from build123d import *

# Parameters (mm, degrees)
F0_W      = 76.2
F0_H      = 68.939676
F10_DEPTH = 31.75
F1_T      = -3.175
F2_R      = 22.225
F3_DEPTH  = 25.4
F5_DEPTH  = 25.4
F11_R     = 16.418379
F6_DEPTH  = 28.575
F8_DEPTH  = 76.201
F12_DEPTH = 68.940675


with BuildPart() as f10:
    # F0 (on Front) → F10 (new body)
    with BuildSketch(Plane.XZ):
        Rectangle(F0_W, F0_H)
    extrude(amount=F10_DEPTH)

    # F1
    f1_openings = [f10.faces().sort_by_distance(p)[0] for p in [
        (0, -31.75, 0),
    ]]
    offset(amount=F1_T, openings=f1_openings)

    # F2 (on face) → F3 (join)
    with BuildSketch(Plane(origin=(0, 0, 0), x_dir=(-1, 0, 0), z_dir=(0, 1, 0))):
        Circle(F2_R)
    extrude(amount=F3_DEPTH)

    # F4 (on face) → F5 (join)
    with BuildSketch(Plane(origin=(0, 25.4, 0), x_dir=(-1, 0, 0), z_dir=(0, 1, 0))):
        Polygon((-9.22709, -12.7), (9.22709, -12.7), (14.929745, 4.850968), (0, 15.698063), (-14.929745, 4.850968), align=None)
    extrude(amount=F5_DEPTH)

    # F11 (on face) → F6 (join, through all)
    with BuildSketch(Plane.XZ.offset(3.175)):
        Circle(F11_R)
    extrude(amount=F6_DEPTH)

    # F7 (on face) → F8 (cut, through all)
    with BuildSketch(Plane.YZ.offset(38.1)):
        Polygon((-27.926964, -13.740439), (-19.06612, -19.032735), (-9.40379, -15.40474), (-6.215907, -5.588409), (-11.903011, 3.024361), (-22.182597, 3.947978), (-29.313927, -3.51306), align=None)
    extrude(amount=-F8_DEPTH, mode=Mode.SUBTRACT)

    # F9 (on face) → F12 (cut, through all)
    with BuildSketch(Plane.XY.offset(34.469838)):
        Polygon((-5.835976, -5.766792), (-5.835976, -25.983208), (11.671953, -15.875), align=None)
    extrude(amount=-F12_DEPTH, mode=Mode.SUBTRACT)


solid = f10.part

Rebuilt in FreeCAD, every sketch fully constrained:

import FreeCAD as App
import Part
import Sketcher
Q = App.Units.Quantity


def faces_at(feature, points):
    """Names of the faces that lie closest to the given points."""
    faces = feature.Shape.Faces
    near = lambda p: min(range(len(faces)), key=lambda i: faces[i].distToShape(Part.Vertex(*p))[0])
    return sorted({f"Face{near(p) + 1}" for p in points})


def add_polygon(sketch, points):
    """Adds a closed chain of lines whose ends are joined by coincident constraints."""
    first, n = sketch.GeometryCount, len(points)
    for a, b in zip(points, points[1:] + points[:1]):
        sketch.addGeometry(Part.LineSegment(App.Vector(*a, 0), App.Vector(*b, 0)), False)
    for i in range(n):
        sketch.addConstraint(Sketcher.Constraint("Coincident", first + i, 2, first + (i + 1) % n, 1))

doc = App.newDocument("Part")
params = doc.addObject("Spreadsheet::Sheet", "Params")
for row, (alias, value) in enumerate([
    ("sketch1_width", "3 in"),
    ("pad1_length", "1.25 in"),
    ("thickness_wall", "0.125 in"),
    ("sketch2_diameter", "1.75 in"),
    ("pad2_length", "1 in"),
    ("pad3_length", "1 in"),
    ("pad4_length", "1.125 in"),
], start=1):
    params.set(f"A{row}", alias)
    params.set(f"B{row}", "=" + value)
    params.setAlias(f"B{row}", alias)

body = doc.addObject("PartDesign::Body", "Body")

# Sketch on XZ plane
sketch1 = body.newObject("Sketcher::SketchObject", "Sketch")
sketch1.AttachmentSupport = (doc.getObject("XZ_Plane"), [""])
sketch1.MapMode = "FlatFace"
add_polygon(sketch1, [(-38.1, 34.469838), (-38.1, -34.469838), (38.1, -34.469838), (38.1, 34.469838)])  # lines 0-3
sketch1.addConstraint(Sketcher.Constraint("Vertical", 0))
sketch1.addConstraint(Sketcher.Constraint("Horizontal", 1))
sketch1.addConstraint(Sketcher.Constraint("Vertical", 2))
sketch1.addConstraint(Sketcher.Constraint("Horizontal", 3))
sketch1.addConstraint(Sketcher.Constraint("Symmetric", 0, 2, 2, 2, -1, 1))
sketch1.addConstraint(Sketcher.Constraint("DistanceX", 1, 1, 1, 2, Q("3 in")))
sketch1.addConstraint(Sketcher.Constraint("DistanceY", 0, 2, 0, 1, 68.939676))
sketch1.setExpression("Constraints[9]", "Params.sketch1_width")
pad1 = body.newObject("PartDesign::Pad", "Pad")
pad1.Profile = sketch1
pad1.setExpression("Length", "Params.pad1_length")
doc.recompute()

thickness = body.newObject("PartDesign::Thickness", "Thickness")
thickness.Base = (pad1, faces_at(pad1, [(0, -31.75, 0)]))
thickness.setExpression("Value", "Params.thickness_wall")
thickness.Reversed = True
thickness.Join = "Arc"

# Sketch on XZ plane
sketch2 = body.newObject("Sketcher::SketchObject", "Sketch001")
sketch2.AttachmentSupport = (doc.getObject("XZ_Plane"), [""])
sketch2.MapMode = "FlatFace"
sketch2.addGeometry(Part.Circle(App.Vector(0, 0, 0), App.Vector(0, 0, 1), 22.225), False)
sketch2.addConstraint(Sketcher.Constraint("Coincident", 0, 3, -1, 1))
sketch2.addConstraint(Sketcher.Constraint("Diameter", 0, Q("1.75 in")))
sketch2.setExpression("Constraints[1]", "Params.sketch2_diameter")
pad2 = body.newObject("PartDesign::Pad", "Pad001")
pad2.Profile = sketch2
pad2.setExpression("Length", "Params.pad2_length")
pad2.Reversed = True

# Sketch on XZ plane
sketch3 = body.newObject("Sketcher::SketchObject", "Sketch002")
sketch3.AttachmentSupport = (doc.getObject("XZ_Plane"), [""])
sketch3.MapMode = "FlatFace"
sketch3.AttachmentOffset = App.Placement(App.Vector(0, 0, -1 * 25.4), App.Rotation())
add_polygon(sketch3, [(9.22709, -12.7), (-9.22709, -12.7), (-14.929745, 4.850968), (0, 15.698063), (14.929745, 4.850968)])  # lines 0-4
sketch3.addConstraint(Sketcher.Constraint("Horizontal", 0))
sketch3.addConstraint(Sketcher.Constraint("Symmetric", 1, 2, 3, 2, -2))
sketch3.addConstraint(Sketcher.Constraint("PointOnObject", 2, 2, -2))
sketch3.addConstraint(Sketcher.Constraint("Equal", 1, 2))
sketch3.addConstraint(Sketcher.Constraint("Equal", 3, 4))
sketch3.addConstraint(Sketcher.Constraint("Angle", 1, Q("107.999999 deg")))
sketch3.addConstraint(Sketcher.Constraint("Angle", 2, Q("36.000001 deg")))
sketch3.addConstraint(Sketcher.Constraint("DistanceY", 0, 2, -1, 1, Q("0.5 in")))
sketch3.addConstraint(Sketcher.Constraint("DistanceX", 0, 2, 0, 1, 18.45418))
pad3 = body.newObject("PartDesign::Pad", "Pad002")
pad3.Profile = sketch3
pad3.setExpression("Length", "Params.pad3_length")
pad3.Reversed = True

# Sketch on XZ plane
sketch4 = body.newObject("Sketcher::SketchObject", "Sketch003")
sketch4.AttachmentSupport = (doc.getObject("XZ_Plane"), [""])
sketch4.MapMode = "FlatFace"
sketch4.AttachmentOffset = App.Placement(App.Vector(0, 0, 0.125 * 25.4), App.Rotation())
sketch4.addGeometry(Part.Circle(App.Vector(0, 0, 0), App.Vector(0, 0, 1), 16.418379), False)
sketch4.addConstraint(Sketcher.Constraint("Coincident", 0, 3, -1, 1))
sketch4.addConstraint(Sketcher.Constraint("Diameter", 0, 32.836758))
pad4 = body.newObject("PartDesign::Pad", "Pad003")
pad4.Profile = sketch4
pad4.setExpression("Length", "Params.pad4_length")

# Sketch on YZ plane
sketch5 = body.newObject("Sketcher::SketchObject", "Sketch004")
sketch5.AttachmentSupport = (doc.getObject("YZ_Plane"), [""])
sketch5.MapMode = "FlatFace"
sketch5.AttachmentOffset = App.Placement(App.Vector(0, 0, 1.5 * 25.4), App.Rotation())
add_polygon(sketch5, [(-27.926964, -13.740439), (-19.06612, -19.032735), (-9.40379, -15.40474), (-6.215907, -5.588409), (-11.903011, 3.024361), (-22.182597, 3.947978), (-29.313927, -3.51306)])  # lines 0-6
sketch5.addConstraint(Sketcher.Constraint("Equal", 0, 1))
sketch5.addConstraint(Sketcher.Constraint("Equal", 1, 2))
sketch5.addConstraint(Sketcher.Constraint("Equal", 2, 3))
sketch5.addConstraint(Sketcher.Constraint("Equal", 3, 4))
sketch5.addConstraint(Sketcher.Constraint("Equal", 4, 5))
sketch5.addConstraint(Sketcher.Constraint("Equal", 5, 6))
sketch5.addConstraint(Sketcher.Constraint("DistanceY", 1, 2, 3, 2, 18.429101))
sketch5.addConstraint(Sketcher.Constraint("DistanceY", 1, 2, 6, 2, 1.664301))
sketch5.addConstraint(Sketcher.Constraint("DistanceX", 0, 2, -1, 1, 19.06612))
sketch5.addConstraint(Sketcher.Constraint("DistanceX", 1, 2, -1, 1, 9.40379))
sketch5.addConstraint(Sketcher.Constraint("DistanceY", 1, 2, -1, 1, 15.40474))
sketch5.addConstraint(Sketcher.Constraint("DistanceY", 2, 2, -1, 1, 5.588409))
sketch5.addConstraint(Sketcher.Constraint("DistanceX", 3, 2, -1, 1, 11.903011))
sketch5.addConstraint(Sketcher.Constraint("DistanceY", -1, 1, 4, 2, 3.947978))
pocket1 = body.newObject("PartDesign::Pocket", "Pocket")
pocket1.Profile = sketch5
pocket1.Type = "ThroughAll"

# Sketch on XY plane
sketch6 = body.newObject("Sketcher::SketchObject", "Sketch005")
sketch6.AttachmentSupport = (doc.getObject("XY_Plane"), [""])
sketch6.MapMode = "FlatFace"
sketch6.AttachmentOffset = App.Placement(App.Vector(0, 0, 34.469838), App.Rotation())
add_polygon(sketch6, [(-5.835976, -5.766792), (-5.835976, -25.983208), (11.671953, -15.875)])  # lines 0-2
sketch6.addConstraint(Sketcher.Constraint("Vertical", 0))
sketch6.addConstraint(Sketcher.Constraint("Equal", 1, 2))
sketch6.addConstraint(Sketcher.Constraint("Angle", 1, Q("30.000001 deg")))
sketch6.addConstraint(Sketcher.Constraint("DistanceY", 1, 2, -1, 1, Q("0.625 in")))
sketch6.addConstraint(Sketcher.Constraint("DistanceY", 0, 2, 0, 1, 20.216416))
sketch6.addConstraint(Sketcher.Constraint("DistanceX", 0, 2, -1, 1, 5.835976))
pocket2 = body.newObject("PartDesign::Pocket", "Pocket001")
pocket2.Profile = sketch6
pocket2.Type = "ThroughAll"

doc.recompute()
